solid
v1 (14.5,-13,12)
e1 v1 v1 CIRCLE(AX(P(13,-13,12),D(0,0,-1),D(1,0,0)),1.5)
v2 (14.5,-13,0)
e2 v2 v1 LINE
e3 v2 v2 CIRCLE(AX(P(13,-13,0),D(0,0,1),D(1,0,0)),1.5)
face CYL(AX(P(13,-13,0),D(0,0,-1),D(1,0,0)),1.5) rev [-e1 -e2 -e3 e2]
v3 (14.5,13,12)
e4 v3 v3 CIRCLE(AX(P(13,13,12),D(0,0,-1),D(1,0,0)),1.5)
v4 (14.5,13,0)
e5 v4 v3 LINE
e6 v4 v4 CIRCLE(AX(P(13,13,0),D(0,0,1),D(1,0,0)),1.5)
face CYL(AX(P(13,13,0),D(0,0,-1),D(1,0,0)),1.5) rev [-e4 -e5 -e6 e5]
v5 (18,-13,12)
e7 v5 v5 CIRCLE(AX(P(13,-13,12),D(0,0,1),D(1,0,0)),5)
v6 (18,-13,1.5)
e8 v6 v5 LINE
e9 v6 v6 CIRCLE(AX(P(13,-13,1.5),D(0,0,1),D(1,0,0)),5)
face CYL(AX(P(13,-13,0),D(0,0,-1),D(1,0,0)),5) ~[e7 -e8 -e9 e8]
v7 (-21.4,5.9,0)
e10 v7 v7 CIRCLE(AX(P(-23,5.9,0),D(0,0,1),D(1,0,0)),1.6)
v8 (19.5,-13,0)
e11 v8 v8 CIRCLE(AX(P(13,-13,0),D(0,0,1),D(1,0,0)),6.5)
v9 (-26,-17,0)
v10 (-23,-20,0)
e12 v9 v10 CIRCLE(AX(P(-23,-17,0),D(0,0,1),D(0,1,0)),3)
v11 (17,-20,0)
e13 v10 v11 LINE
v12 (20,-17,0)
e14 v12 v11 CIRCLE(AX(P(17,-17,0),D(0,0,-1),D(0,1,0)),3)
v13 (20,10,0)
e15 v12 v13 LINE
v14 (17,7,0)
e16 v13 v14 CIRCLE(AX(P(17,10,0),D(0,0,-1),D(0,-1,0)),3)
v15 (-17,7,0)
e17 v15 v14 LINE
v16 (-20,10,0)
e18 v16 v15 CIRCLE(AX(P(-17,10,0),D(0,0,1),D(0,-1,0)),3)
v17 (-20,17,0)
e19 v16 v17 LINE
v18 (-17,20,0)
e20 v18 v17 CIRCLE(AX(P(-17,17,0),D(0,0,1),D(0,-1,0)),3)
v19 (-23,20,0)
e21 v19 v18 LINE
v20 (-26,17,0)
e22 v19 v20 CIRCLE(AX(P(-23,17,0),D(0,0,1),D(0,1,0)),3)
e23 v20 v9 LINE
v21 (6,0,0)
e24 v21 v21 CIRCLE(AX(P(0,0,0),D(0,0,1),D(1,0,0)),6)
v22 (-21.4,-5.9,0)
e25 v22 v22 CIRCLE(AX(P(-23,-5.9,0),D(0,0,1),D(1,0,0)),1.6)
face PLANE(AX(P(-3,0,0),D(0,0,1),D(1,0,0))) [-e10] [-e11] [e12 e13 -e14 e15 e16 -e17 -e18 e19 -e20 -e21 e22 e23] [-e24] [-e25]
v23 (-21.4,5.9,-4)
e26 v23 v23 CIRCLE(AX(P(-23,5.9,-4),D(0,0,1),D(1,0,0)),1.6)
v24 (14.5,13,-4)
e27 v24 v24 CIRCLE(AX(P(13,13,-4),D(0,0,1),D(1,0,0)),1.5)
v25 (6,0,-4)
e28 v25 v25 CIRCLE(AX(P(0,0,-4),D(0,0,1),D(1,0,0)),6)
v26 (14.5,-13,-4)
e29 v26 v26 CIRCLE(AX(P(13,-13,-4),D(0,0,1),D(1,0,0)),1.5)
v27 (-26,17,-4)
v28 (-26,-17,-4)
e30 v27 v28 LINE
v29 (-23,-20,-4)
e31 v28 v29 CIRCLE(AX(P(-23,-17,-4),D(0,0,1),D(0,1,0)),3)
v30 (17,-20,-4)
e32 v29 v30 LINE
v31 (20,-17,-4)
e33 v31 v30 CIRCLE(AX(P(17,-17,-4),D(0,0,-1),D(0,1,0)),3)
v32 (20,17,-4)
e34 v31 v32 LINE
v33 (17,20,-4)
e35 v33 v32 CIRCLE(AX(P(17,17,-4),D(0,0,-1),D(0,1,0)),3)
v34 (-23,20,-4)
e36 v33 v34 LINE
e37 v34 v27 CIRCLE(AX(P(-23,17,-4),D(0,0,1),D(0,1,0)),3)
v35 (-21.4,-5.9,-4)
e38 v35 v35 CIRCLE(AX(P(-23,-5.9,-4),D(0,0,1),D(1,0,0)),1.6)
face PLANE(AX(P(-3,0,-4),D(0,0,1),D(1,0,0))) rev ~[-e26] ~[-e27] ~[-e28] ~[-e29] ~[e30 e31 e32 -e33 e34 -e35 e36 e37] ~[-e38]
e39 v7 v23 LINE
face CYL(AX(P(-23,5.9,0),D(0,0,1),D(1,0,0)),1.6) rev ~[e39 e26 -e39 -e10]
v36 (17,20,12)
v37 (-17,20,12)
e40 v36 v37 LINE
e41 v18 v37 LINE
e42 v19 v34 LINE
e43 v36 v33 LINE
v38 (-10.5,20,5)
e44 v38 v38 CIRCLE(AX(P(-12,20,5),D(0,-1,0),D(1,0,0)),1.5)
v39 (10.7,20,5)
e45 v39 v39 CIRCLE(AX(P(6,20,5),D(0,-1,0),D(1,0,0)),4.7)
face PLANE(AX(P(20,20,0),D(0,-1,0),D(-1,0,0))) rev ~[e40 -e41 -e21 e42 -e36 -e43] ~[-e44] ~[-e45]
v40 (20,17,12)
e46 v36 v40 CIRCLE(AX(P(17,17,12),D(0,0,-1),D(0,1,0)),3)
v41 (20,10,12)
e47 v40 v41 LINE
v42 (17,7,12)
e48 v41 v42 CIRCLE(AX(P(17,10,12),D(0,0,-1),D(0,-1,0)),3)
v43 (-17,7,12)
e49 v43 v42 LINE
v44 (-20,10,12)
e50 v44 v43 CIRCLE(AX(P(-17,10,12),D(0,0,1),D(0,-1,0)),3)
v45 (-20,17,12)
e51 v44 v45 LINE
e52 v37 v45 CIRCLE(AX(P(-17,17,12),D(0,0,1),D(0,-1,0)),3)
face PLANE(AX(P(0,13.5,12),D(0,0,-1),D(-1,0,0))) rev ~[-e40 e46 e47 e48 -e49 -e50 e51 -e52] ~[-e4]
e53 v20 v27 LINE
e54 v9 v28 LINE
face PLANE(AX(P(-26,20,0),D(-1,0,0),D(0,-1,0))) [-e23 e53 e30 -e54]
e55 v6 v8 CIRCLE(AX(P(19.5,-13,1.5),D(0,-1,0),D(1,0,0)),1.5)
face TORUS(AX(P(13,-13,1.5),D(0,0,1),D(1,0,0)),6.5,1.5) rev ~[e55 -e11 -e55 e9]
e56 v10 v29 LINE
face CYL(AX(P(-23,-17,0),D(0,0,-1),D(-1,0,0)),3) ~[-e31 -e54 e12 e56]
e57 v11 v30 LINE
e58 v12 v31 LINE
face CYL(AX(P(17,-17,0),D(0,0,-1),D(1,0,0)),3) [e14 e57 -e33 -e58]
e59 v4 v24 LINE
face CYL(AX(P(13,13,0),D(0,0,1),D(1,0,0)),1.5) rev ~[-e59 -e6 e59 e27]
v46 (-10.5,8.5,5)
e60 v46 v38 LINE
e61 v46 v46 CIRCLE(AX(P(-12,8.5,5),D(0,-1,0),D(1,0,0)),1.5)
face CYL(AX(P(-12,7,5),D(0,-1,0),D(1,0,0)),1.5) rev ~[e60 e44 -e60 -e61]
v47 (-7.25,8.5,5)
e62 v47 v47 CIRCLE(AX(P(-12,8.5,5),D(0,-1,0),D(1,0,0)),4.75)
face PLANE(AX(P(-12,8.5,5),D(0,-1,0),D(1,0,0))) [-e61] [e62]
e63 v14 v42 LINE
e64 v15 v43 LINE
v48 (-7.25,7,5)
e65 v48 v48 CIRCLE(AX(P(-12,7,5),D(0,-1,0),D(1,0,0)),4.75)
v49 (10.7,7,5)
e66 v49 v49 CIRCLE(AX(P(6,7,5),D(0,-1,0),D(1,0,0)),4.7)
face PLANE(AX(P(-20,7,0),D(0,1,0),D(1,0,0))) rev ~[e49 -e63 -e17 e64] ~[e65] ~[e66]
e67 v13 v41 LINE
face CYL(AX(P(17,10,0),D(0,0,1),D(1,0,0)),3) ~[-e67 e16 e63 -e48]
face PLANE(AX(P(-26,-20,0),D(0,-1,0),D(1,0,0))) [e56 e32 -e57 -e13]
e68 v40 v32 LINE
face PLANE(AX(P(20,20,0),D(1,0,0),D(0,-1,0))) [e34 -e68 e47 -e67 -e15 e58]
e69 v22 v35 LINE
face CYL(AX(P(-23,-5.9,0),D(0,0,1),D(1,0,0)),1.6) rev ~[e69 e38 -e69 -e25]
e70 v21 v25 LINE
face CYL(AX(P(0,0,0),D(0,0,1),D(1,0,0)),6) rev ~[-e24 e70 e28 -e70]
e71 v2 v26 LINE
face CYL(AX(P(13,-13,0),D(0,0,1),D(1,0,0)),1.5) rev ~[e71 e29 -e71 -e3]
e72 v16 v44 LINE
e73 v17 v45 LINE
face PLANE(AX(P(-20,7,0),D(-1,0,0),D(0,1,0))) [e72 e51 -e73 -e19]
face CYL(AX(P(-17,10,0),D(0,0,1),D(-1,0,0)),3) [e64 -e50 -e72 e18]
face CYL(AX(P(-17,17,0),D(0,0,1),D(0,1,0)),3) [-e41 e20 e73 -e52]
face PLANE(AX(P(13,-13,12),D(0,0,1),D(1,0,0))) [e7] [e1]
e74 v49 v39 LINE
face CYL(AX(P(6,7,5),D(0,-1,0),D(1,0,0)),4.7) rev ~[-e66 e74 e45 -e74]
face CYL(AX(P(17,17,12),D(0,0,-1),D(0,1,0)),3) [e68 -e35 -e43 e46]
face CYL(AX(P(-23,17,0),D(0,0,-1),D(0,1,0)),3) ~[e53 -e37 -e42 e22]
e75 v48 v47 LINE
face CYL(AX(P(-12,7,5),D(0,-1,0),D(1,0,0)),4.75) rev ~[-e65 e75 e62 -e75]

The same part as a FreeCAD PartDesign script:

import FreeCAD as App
import Part
import Sketcher

V = App.Vector
Q = App.Units.Quantity


def edges_at(feature, points):
    """Names of the edges that pass closest to the given points."""
    edges = feature.Shape.Edges
    near = lambda p: min(range(len(edges)), key=lambda i: edges[i].distToShape(Part.Vertex(*p))[0])
    return sorted({f"Edge{near(p) + 1}" for p in points})


def add_polygon(sketch, points):
    """Adds a closed chain of lines whose ends are joined by coincident constraints."""
    first, n = sketch.GeometryCount, len(points)
    for a, b in zip(points, points[1:] + points[:1]):
        sketch.addGeometry(Part.LineSegment(App.Vector(*a, 0), App.Vector(*b, 0)), False)
    for i in range(n):
        sketch.addConstraint(Sketcher.Constraint("Coincident", first + i, 2, first + (i + 1) % n, 1))

doc = App.newDocument("Part")
params = doc.addObject("Spreadsheet::Sheet", "Params")
for row, (alias, value) in enumerate([
    ("sketch1_diameter", "12 mm"),
    ("sketch1_diameter2", "3.2 mm"),
    ("sketch1_width", "46 mm"),
    ("sketch1_height", "40 mm"),
    ("pad1_length", "4 mm"),
    ("sketch2_diameter", "10 mm"),
    ("sketch2_width", "40 mm"),
    ("sketch2_height", "13 mm"),
    ("pad2_length", "12 mm"),
    ("sketch3_diameter", "9.4 mm"),
    ("sketch4_diameter", "9.5 mm"),
    ("pocket2_length", "1.5 mm"),
    ("sketch5_diameter", "3 mm"),
    ("sketch6_diameter", "3 mm"),
    ("fillet_radius", "3 mm"),
    ("fillet2_radius", "1.5 mm"),
], start=1):
    params.set(f"A{row}", alias)
    params.set(f"B{row}", "=" + value)
    params.setAlias(f"B{row}", alias)

body = doc.addObject("PartDesign::Body", "Body")

# Sketch on XY plane
sketch1 = body.newObject("Sketcher::SketchObject", "Sketch")
sketch1.AttachmentSupport = (doc.getObject("XY_Plane"), [""])
sketch1.MapMode = "FlatFace"
add_polygon(sketch1, [(-26, 20), (-26, -20), (20, -20), (20, 20)])  # lines 0-3
sketch1.addGeometry(Part.Circle(V(-23, -5.9, 0), V(0, 0, 1), 1.6), False)  # 4
sketch1.addGeometry(Part.Circle(V(-23, 5.9, 0), V(0, 0, 1), 1.6), False)  # 5
sketch1.addGeometry(Part.Circle(V(0, 0, 0), V(0, 0, 1), 6), False)  # 6
sketch1.addConstraint([
    Sketcher.Constraint("Vertical", 0),
    Sketcher.Constraint("Horizontal", 1),
    Sketcher.Constraint("Vertical", 2),
    Sketcher.Constraint("Horizontal", 3),
    Sketcher.Constraint("Coincident", 6, 3, -1, 1),
    Sketcher.Constraint("Equal", 4, 5),
    Sketcher.Constraint("Symmetric", 4, 3, 5, 3, -1),
    Sketcher.Constraint("Diameter", 6, Q("12 mm")),
    Sketcher.Constraint("Diameter", 4, Q("3.2 mm")),
    Sketcher.Constraint("DistanceX", 1, 1, 1, 2, Q("46 mm")),
    Sketcher.Constraint("DistanceY", 0, 2, 0, 1, Q("40 mm")),
    Sketcher.Constraint("DistanceX", 4, 3, -1, 1, Q("23 mm")),
    Sketcher.Constraint("DistanceX", 0, 2, -1, 1, Q("26 mm")),
    Sketcher.Constraint("DistanceY", 0, 2, -1, 1, Q("20 mm")),
    Sketcher.Constraint("DistanceY", 4, 3, -1, 1, Q("5.9 mm")),
])
sketch1.setExpression("Constraints[11]", "Params.sketch1_diameter")
sketch1.setExpression("Constraints[12]", "Params.sketch1_diameter2")
sketch1.setExpression("Constraints[13]", "Params.sketch1_width")
sketch1.setExpression("Constraints[14]", "Params.sketch1_height")
pad1 = body.newObject("PartDesign::Pad", "Pad")
pad1.Profile = sketch1
pad1.setExpression("Length", "Params.pad1_length")
pad1.Reversed = True

# Sketch on XY plane
sketch2 = body.newObject("Sketcher::SketchObject", "Sketch001")
sketch2.AttachmentSupport = (doc.getObject("XY_Plane"), [""])
sketch2.MapMode = "FlatFace"
sketch2.addGeometry(Part.Circle(V(13, -13, 0), V(0, 0, 1), 5), False)  # 0
add_polygon(sketch2, [(20, 20), (-20, 20), (-20, 7), (20, 7)])  # lines 1-4
sketch2.addConstraint([
    Sketcher.Constraint("Horizontal", 1),
    Sketcher.Constraint("Vertical", 2),
    Sketcher.Constraint("Horizontal", 3),
    Sketcher.Constraint("Vertical", 4),
    Sketcher.Constraint("Diameter", 0, Q("10 mm")),
    Sketcher.Constraint("DistanceX", 1, 2, 1, 1, Q("40 mm")),
    Sketcher.Constraint("DistanceY", 2, 2, 2, 1, Q("13 mm")),
    Sketcher.Constraint("DistanceX", -1, 1, 0, 3, Q("13 mm")),
    Sketcher.Constraint("DistanceY", 0, 3, -1, 1, Q("13 mm")),
    Sketcher.Constraint("DistanceX", 1, 2, -1, 1, Q("20 mm")),
    Sketcher.Constraint("DistanceY", -1, 1, 1, 2, Q("20 mm")),
])
sketch2.setExpression("Constraints[8]", "Params.sketch2_diameter")
sketch2.setExpression("Constraints[9]", "Params.sketch2_width")
sketch2.setExpression("Constraints[10]", "Params.sketch2_height")
pad2 = body.newObject("PartDesign::Pad", "Pad001")
pad2.Profile = sketch2
pad2.setExpression("Length", "Params.pad2_length")

# Sketch on XZ plane
sketch3 = body.newObject("Sketcher::SketchObject", "Sketch002")
sketch3.AttachmentSupport = (doc.getObject("XZ_Plane"), [""])
sketch3.MapMode = "FlatFace"
sketch3.AttachmentOffset = App.Placement(V(0, 0, -7), App.Rotation())
sketch3.addGeometry(Part.Circle(V(6, 5, 0), V(0, 0, 1), 4.7), False)
sketch3.addConstraint([
    Sketcher.Constraint("Diameter", 0, Q("9.4 mm")),
    Sketcher.Constraint("DistanceX", -1, 1, 0, 3, Q("6 mm")),
    Sketcher.Constraint("DistanceY", -1, 1, 0, 3, Q("5 mm")),
])
sketch3.setExpression("Constraints[0]", "Params.sketch3_diameter")
pocket1 = body.newObject("PartDesign::Pocket", "Pocket")
pocket1.Profile = sketch3
pocket1.Type = "ThroughAll"

# Sketch on XZ plane
sketch4 = body.newObject("Sketcher::SketchObject", "Sketch003")
sketch4.AttachmentSupport = (doc.getObject("XZ_Plane"), [""])
sketch4.MapMode = "FlatFace"
sketch4.AttachmentOffset = App.Placement(V(0, 0, -7), App.Rotation())
sketch4.addGeometry(Part.Circle(V(-12, 5, 0), V(0, 0, 1), 4.8), False)
sketch4.addConstraint([
    Sketcher.Constraint("Diameter", 0, Q("9.5 mm")),
    Sketcher.Constraint("DistanceX", 0, 3, -1, 1, Q("12 mm")),
    Sketcher.Constraint("DistanceY", -1, 1, 0, 3, Q("5 mm")),
])
sketch4.setExpression("Constraints[0]", "Params.sketch4_diameter")
pocket2 = body.newObject("PartDesign::Pocket", "Pocket001")
pocket2.Profile = sketch4
pocket2.setExpression("Length", "Params.pocket2_length")

# Sketch on XZ plane
sketch5 = body.newObject("Sketcher::SketchObject", "Sketch004")
sketch5.AttachmentSupport = (doc.getObject("XZ_Plane"), [""])
sketch5.MapMode = "FlatFace"
sketch5.AttachmentOffset = App.Placement(V(0, 0, -7), App.Rotation())
sketch5.addGeometry(Part.Circle(V(-12, 5, 0), V(0, 0, 1), 1.5), False)
sketch5.addConstraint([
    Sketcher.Constraint("Diameter", 0, Q("3 mm")),
    Sketcher.Constraint("DistanceX", 0, 3, -1, 1, Q("12 mm")),
    Sketcher.Constraint("DistanceY", -1, 1, 0, 3, Q("5 mm")),
])
sketch5.setExpression("Constraints[0]", "Params.sketch5_diameter")
pocket3 = body.newObject("PartDesign::Pocket", "Pocket002")
pocket3.Profile = sketch5
pocket3.Type = "ThroughAll"

# Sketch on XY plane
sketch6 = body.newObject("Sketcher::SketchObject", "Sketch005")
sketch6.AttachmentSupport = (doc.getObject("XY_Plane"), [""])
sketch6.MapMode = "FlatFace"
sketch6.addGeometry([
    Part.Circle(V(13, -13, 0), V(0, 0, 1), 1.5),
    Part.Circle(V(13, 13, 0), V(0, 0, 1), 1.5),
], False)
sketch6.addConstraint([
    Sketcher.Constraint("Equal", 0, 1),
    Sketcher.Constraint("Symmetric", 0, 3, 1, 3, -1),
    Sketcher.Constraint("Diameter", 0, Q("3 mm")),
    Sketcher.Constraint("DistanceX", -1, 1, 0, 3, Q("13 mm")),
    Sketcher.Constraint("DistanceY", 0, 3, -1, 1, Q("13 mm")),
])
sketch6.setExpression("Constraints[2]", "Params.sketch6_diameter")
pocket4 = body.newObject("PartDesign::Pocket", "Pocket003")
pocket4.Profile = sketch6
pocket4.Type = "ThroughAll"
pocket4.Midplane = True
doc.recompute()

fillet = body.newObject("PartDesign::Fillet", "Fillet")
fillet.Base = (pocket4, edges_at(pocket4, [
    (-26, -20, -2),
    (20, -20, -2),
    (20, 20, 4),
    (-26, 20, -2),
    (20, 7, 6),
    (-20, 7, 6),
    (-20, 20, 6),
]))
fillet.setExpression("Radius", "Params.fillet_radius")
doc.recompute()

fillet2 = body.newObject("PartDesign::Fillet", "Fillet001")
fillet2.Base = (fillet, edges_at(fillet, [(8, -13, 0)]))
fillet2.setExpression("Radius", "Params.fillet2_radius")

doc.recompute()
